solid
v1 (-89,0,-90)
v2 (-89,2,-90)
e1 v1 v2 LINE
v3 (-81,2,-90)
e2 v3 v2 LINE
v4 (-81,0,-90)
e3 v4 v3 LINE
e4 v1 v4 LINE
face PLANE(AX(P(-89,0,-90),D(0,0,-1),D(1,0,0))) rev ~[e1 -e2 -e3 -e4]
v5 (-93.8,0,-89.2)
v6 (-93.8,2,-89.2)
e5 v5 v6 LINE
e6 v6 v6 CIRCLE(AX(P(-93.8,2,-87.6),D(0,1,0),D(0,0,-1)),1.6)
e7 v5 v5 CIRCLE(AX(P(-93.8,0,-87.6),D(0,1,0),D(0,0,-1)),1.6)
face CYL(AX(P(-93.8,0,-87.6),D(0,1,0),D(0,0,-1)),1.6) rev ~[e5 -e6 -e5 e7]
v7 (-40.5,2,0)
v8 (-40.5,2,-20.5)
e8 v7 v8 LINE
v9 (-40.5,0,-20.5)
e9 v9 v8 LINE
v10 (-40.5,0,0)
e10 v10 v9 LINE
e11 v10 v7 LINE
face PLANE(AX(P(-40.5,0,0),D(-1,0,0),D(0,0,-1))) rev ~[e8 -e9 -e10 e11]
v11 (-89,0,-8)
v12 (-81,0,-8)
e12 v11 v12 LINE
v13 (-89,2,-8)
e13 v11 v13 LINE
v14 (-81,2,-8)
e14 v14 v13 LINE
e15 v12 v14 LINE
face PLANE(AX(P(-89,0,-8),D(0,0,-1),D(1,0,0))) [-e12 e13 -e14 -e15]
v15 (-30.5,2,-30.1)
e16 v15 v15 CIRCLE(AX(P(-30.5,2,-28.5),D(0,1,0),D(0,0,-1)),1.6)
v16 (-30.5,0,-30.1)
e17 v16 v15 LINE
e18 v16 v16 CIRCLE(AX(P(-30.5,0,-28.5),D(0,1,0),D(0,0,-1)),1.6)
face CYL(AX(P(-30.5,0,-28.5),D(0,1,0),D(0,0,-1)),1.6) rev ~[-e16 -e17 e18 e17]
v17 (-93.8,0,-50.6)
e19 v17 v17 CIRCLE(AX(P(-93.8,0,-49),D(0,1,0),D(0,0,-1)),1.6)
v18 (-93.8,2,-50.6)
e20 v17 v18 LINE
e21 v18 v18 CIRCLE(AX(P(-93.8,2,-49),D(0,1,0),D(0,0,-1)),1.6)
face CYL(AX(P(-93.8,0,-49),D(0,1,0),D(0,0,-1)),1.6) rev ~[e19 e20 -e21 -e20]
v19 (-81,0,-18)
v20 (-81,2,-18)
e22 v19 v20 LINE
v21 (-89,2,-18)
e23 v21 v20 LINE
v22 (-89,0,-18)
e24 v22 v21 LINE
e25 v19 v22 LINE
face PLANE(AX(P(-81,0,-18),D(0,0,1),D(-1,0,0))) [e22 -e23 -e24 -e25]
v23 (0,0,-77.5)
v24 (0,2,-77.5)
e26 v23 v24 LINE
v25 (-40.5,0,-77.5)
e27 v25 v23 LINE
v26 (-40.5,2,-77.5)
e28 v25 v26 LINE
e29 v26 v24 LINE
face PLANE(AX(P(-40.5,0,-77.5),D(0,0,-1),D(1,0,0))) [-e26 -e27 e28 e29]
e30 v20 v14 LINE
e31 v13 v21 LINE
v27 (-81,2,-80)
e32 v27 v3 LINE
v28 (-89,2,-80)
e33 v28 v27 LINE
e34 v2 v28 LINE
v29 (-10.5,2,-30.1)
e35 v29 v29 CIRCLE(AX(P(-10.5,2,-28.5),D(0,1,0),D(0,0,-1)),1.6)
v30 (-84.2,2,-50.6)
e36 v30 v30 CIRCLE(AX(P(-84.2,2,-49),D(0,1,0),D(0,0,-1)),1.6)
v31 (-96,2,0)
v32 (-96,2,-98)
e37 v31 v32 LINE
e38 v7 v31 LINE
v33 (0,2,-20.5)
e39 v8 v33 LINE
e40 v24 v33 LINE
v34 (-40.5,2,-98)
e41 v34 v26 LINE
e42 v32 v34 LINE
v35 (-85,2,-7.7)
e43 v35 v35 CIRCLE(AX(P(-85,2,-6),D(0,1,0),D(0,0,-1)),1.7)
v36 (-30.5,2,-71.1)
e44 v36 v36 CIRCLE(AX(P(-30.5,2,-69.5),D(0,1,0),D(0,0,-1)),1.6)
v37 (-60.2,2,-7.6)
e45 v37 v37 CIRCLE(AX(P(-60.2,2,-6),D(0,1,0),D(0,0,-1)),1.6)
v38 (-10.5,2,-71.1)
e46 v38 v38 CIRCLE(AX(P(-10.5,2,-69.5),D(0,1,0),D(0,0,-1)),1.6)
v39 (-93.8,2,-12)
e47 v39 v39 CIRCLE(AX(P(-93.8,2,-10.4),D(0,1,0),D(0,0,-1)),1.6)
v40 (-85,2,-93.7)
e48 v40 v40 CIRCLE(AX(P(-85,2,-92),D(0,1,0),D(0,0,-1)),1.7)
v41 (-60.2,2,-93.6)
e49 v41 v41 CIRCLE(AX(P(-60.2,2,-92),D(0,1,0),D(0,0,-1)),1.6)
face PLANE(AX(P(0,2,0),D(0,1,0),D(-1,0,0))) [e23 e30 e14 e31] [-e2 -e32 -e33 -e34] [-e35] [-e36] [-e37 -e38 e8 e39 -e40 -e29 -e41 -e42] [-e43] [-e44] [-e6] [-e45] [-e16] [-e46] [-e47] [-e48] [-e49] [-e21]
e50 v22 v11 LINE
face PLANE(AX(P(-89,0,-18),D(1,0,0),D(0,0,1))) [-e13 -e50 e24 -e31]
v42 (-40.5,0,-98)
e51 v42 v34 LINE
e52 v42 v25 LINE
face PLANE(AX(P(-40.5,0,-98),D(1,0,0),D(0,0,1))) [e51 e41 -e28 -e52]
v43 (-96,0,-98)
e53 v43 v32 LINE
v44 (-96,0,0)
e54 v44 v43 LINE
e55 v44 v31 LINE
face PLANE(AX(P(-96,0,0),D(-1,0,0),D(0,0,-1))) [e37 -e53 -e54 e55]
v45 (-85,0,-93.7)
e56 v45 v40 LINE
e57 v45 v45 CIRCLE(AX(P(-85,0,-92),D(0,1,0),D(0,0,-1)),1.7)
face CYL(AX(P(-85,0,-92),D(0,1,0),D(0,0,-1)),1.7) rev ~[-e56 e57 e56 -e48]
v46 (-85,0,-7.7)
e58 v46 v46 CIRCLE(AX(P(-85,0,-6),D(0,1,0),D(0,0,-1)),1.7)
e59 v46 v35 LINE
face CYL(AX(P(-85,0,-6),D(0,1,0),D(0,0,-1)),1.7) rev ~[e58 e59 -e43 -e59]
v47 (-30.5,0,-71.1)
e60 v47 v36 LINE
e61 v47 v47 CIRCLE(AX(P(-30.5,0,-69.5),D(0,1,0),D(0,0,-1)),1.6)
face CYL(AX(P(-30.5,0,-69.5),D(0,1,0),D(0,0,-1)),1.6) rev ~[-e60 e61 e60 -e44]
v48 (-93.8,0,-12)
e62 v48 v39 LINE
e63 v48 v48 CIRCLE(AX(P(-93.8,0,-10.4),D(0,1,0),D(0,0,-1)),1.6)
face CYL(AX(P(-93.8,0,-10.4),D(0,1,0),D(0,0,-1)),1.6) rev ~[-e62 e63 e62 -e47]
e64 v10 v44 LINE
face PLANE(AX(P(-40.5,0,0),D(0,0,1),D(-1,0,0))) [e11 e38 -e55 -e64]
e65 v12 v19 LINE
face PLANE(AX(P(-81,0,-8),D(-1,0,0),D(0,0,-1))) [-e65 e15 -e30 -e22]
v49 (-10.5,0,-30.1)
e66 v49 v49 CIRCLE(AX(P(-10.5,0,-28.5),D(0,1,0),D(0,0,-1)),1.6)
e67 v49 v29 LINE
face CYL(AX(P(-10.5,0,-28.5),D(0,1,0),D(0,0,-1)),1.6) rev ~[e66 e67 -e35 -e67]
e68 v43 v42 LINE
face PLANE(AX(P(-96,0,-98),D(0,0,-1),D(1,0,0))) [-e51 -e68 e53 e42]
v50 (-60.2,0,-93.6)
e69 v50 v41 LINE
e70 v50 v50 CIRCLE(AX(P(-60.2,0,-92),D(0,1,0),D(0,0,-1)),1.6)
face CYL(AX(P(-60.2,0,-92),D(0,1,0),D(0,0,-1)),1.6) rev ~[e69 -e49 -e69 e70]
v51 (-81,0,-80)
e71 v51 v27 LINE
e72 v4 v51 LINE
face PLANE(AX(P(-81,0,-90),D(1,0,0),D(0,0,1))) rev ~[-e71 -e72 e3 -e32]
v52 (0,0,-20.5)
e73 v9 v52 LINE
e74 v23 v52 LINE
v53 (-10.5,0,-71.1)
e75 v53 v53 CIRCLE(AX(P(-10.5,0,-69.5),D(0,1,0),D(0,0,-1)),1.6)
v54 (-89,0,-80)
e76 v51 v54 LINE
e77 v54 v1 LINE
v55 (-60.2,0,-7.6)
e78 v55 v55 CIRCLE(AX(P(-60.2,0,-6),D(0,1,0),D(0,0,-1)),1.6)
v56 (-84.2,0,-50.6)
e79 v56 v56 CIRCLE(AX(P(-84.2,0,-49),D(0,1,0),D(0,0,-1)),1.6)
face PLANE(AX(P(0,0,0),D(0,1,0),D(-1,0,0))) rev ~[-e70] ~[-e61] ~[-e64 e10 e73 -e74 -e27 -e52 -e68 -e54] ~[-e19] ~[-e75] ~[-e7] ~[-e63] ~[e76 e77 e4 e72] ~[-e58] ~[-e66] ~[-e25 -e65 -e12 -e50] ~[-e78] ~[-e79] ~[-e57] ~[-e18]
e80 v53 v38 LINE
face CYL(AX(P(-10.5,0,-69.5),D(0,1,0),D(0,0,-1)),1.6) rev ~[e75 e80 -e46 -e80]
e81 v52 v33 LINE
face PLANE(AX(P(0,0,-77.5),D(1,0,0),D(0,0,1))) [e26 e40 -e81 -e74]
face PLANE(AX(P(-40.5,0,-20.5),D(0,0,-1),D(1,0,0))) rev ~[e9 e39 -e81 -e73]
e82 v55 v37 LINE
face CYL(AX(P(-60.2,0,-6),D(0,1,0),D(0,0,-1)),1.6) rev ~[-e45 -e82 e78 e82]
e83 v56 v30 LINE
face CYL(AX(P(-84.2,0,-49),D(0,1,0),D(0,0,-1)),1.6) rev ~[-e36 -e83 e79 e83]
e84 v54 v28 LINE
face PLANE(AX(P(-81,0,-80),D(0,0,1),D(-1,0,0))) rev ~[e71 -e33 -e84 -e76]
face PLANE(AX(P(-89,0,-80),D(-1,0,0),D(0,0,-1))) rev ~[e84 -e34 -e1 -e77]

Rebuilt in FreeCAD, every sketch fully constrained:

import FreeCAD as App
import Part
import Sketcher

doc = App.newDocument("Part")
body = doc.addObject("PartDesign::Body", "Body")

# Sketch on XZ plane
sketch1 = body.newObject("Sketcher::SketchObject", "Sketch")
sketch1.AttachmentSupport = (doc.getObject("XZ_Plane"), [""])
sketch1.MapMode = "FlatFace"
sketch1.addGeometry(Part.LineSegment(App.Vector(-96, 0, 0), App.Vector(-40, 0, 0)), False)
sketch1.addGeometry(Part.LineSegment(App.Vector(-40, 0, 0), App.Vector(-40, -20, 0)), False)
sketch1.addGeometry(Part.LineSegment(App.Vector(-40, -20, 0), App.Vector(0, -20, 0)), False)
sketch1.addGeometry(Part.LineSegment(App.Vector(0, -20, 0), App.Vector(0, -78, 0)), False)
sketch1.addGeometry(Part.LineSegment(App.Vector(0, -78, 0), App.Vector(-40, -78, 0)), False)
sketch1.addGeometry(Part.LineSegment(App.Vector(-40, -78, 0), App.Vector(-40, -98, 0)), False)
sketch1.addGeometry(Part.LineSegment(App.Vector(-40, -98, 0), App.Vector(-96, -98, 0)), False)
sketch1.addGeometry(Part.LineSegment(App.Vector(-96, -98, 0), App.Vector(-96, 0, 0)), False)
sketch1.addConstraint(Sketcher.Constraint("Coincident", 0, 2, 1, 1))
sketch1.addConstraint(Sketcher.Constraint("Coincident", 1, 2, 2, 1))
sketch1.addConstraint(Sketcher.Constraint("Coincident", 2, 2, 3, 1))
sketch1.addConstraint(Sketcher.Constraint("Coincident", 3, 2, 4, 1))
sketch1.addConstraint(Sketcher.Constraint("Coincident", 4, 2, 5, 1))
sketch1.addConstraint(Sketcher.Constraint("Coincident", 5, 2, 6, 1))
sketch1.addConstraint(Sketcher.Constraint("Coincident", 6, 2, 7, 1))
sketch1.addConstraint(Sketcher.Constraint("Coincident", 7, 2, 0, 1))
sketch1.addConstraint(Sketcher.Constraint("Horizontal", 0))
sketch1.addConstraint(Sketcher.Constraint("Vertical", 1))
sketch1.addConstraint(Sketcher.Constraint("Horizontal", 2))
sketch1.addConstraint(Sketcher.Constraint("Vertical", 3))
sketch1.addConstraint(Sketcher.Constraint("Horizontal", 4))
sketch1.addConstraint(Sketcher.Constraint("Vertical", 5))
sketch1.addConstraint(Sketcher.Constraint("Horizontal", 6))
sketch1.addConstraint(Sketcher.Constraint("Vertical", 7))
sketch1.addConstraint(Sketcher.Constraint("PointOnObject", 0, 2, -1))
sketch1.addConstraint(Sketcher.Constraint("PointOnObject", 2, 2, -2))
sketch1.addConstraint(Sketcher.Constraint("Vertical", 1, 2, 4, 2))
sketch1.addConstraint(Sketcher.Constraint("Equal", 1, 5))
sketch1.addConstraint(Sketcher.Constraint("DistanceY", 3, 2, 3, 1, 57.0))
sketch1.addConstraint(Sketcher.Constraint("DistanceY", 7, 1, 7, 2, 98.0))
sketch1.addConstraint(Sketcher.Constraint("DistanceX", 2, 1, 2, 2, 40.5))
sketch1.addConstraint(Sketcher.Constraint("DistanceX", 6, 2, -1, 1, 96.0))
pad1 = body.newObject("PartDesign::Pad", "Pad")
pad1.Profile = sketch1
pad1.Length = 2
pad1.Reversed = True

# Sketch on XZ plane
sketch2 = body.newObject("Sketcher::SketchObject", "Sketch001")
sketch2.AttachmentSupport = (doc.getObject("XZ_Plane"), [""])
sketch2.MapMode = "FlatFace"
sketch2.addGeometry(Part.Circle(App.Vector(-30.5, -28.5, 0), App.Vector(0, 0, 1), 1.6), False)
sketch2.addGeometry(Part.Circle(App.Vector(-30.5, -69.5, 0), App.Vector(0, 0, 1), 1.6), False)
sketch2.addGeometry(Part.Circle(App.Vector(-10.5, -28.5, 0), App.Vector(0, 0, 1), 1.6), False)
sketch2.addGeometry(Part.Circle(App.Vector(-10.5, -69.5, 0), App.Vector(0, 0, 1), 1.6), False)
sketch2.addConstraint(Sketcher.Constraint("Equal", 0, 1))
sketch2.addConstraint(Sketcher.Constraint("Equal", 1, 2))
sketch2.addConstraint(Sketcher.Constraint("Equal", 2, 3))
sketch2.addConstraint(Sketcher.Constraint("Horizontal", 0, 3, 2, 3))
sketch2.addConstraint(Sketcher.Constraint("Horizontal", 1, 3, 3, 3))
sketch2.addConstraint(Sketcher.Constraint("Vertical", 0, 3, 1, 3))
sketch2.addConstraint(Sketcher.Constraint("Vertical", 2, 3, 3, 3))
sketch2.addConstraint(Sketcher.Constraint("Diameter", 0, 3.2))
sketch2.addConstraint(Sketcher.Constraint("DistanceY", 1, 3, 0, 3, 41.0))
sketch2.addConstraint(Sketcher.Constraint("DistanceX", 0, 3, 2, 3, 20.0))
sketch2.addConstraint(Sketcher.Constraint("DistanceX", 0, 3, -1, 1, 30.5))
sketch2.addConstraint(Sketcher.Constraint("DistanceY", 0, 3, -1, 1, 28.5))
doc.recompute()
hole = body.newObject("PartDesign::Hole", "Hole")
hole.Profile = sketch2
hole.ThreadType = "None"
hole.Diameter = 3.2
hole.DepthType = "Dimension"
hole.Depth = 10
hole.DrillPoint = "Flat"

# Sketch on XZ plane
sketch3 = body.newObject("Sketcher::SketchObject", "Sketch002")
sketch3.AttachmentSupport = (doc.getObject("XZ_Plane"), [""])
sketch3.MapMode = "FlatFace"
sketch3.addGeometry(Part.Circle(App.Vector(-93.8, -10.4, 0), App.Vector(0, 0, 1), 1.6), False)
sketch3.addGeometry(Part.Circle(App.Vector(-93.8, -87.6, 0), App.Vector(0, 0, 1), 1.6), False)
sketch3.addGeometry(Part.Circle(App.Vector(-93.8, -49, 0), App.Vector(0, 0, 1), 1.6), False)
sketch3.addConstraint(Sketcher.Constraint("Equal", 0, 1))
sketch3.addConstraint(Sketcher.Constraint("Equal", 1, 2))
sketch3.addConstraint(Sketcher.Constraint("Vertical", 0, 3, 1, 3))
sketch3.addConstraint(Sketcher.Constraint("Vertical", 1, 3, 2, 3))
sketch3.addConstraint(Sketcher.Constraint("Diameter", 0, 3.2))
sketch3.addConstraint(Sketcher.Constraint("DistanceY", 2, 3, -1, 1, 49.0))
sketch3.addConstraint(Sketcher.Constraint("DistanceX", 0, 3, -1, 1, 93.8))
sketch3.addConstraint(Sketcher.Constraint("DistanceY", 0, 3, -1, 1, 10.4))
sketch3.addConstraint(Sketcher.Constraint("DistanceY", 1, 3, -1, 1, 87.6))
doc.recompute()
hole2 = body.newObject("PartDesign::Hole", "Hole001")
hole2.Profile = sketch3
hole2.ThreadType = "None"
hole2.Diameter = 3.2
hole2.DepthType = "ThroughAll"

# Sketch on XZ plane
sketch4 = body.newObject("Sketcher::SketchObject", "Sketch003")
sketch4.AttachmentSupport = (doc.getObject("XZ_Plane"), [""])
sketch4.MapMode = "FlatFace"
sketch4.addGeometry(Part.Circle(App.Vector(-60.2, -6, 0), App.Vector(0, 0, 1), 1.6), False)
sketch4.addGeometry(Part.Circle(App.Vector(-60.2, -92, 0), App.Vector(0, 0, 1), 1.6), False)
sketch4.addConstraint(Sketcher.Constraint("Equal", 0, 1))
sketch4.addConstraint(Sketcher.Constraint("Vertical", 0, 3, 1, 3))
sketch4.addConstraint(Sketcher.Constraint("Diameter", 0, 3.2))
sketch4.addConstraint(Sketcher.Constraint("DistanceY", 0, 3, -1, 1, 6.0))
sketch4.addConstraint(Sketcher.Constraint("DistanceY", 1, 3, -1, 1, 92.0))
sketch4.addConstraint(Sketcher.Constraint("DistanceX", 0, 3, -1, 1, 60.2))
doc.recompute()
hole3 = body.newObject("PartDesign::Hole", "Hole002")
hole3.Profile = sketch4
hole3.ThreadType = "None"
hole3.Diameter = 3.2
hole3.DepthType = "Dimension"
hole3.Depth = 30
hole3.DrillPoint = "Flat"

# Sketch on XZ plane
sketch5 = body.newObject("Sketcher::SketchObject", "Sketch004")
sketch5.AttachmentSupport = (doc.getObject("XZ_Plane"), [""])
sketch5.MapMode = "FlatFace"
sketch5.addGeometry(Part.Circle(App.Vector(-84.2, -49, 0), App.Vector(0, 0, 1), 1.6), False)
sketch5.addConstraint(Sketcher.Constraint("Diameter", 0, 3.2))
sketch5.addConstraint(Sketcher.Constraint("DistanceY", 0, 3, -1, 1, 49.0))
sketch5.addConstraint(Sketcher.Constraint("DistanceX", 0, 3, -1, 1, 84.2))
doc.recompute()
hole4 = body.newObject("PartDesign::Hole", "Hole003")
hole4.Profile = sketch5
hole4.ThreadType = "None"
hole4.Diameter = 3.2
hole4.DepthType = "Dimension"
hole4.Depth = 30
hole4.DrillPoint = "Flat"

# Sketch on XZ plane
sketch6 = body.newObject("Sketcher::SketchObject", "Sketch005")
sketch6.AttachmentSupport = (doc.getObject("XZ_Plane"), [""])
sketch6.MapMode = "FlatFace"
sketch6.addGeometry(Part.Circle(App.Vector(-85, -6, 0), App.Vector(0, 0, 1), 1.7), False)
sketch6.addGeometry(Part.Circle(App.Vector(-85, -92, 0), App.Vector(0, 0, 1), 1.7), False)
sketch6.addConstraint(Sketcher.Constraint("Equal", 0, 1))
sketch6.addConstraint(Sketcher.Constraint("Vertical", 0, 3, 1, 3))
sketch6.addConstraint(Sketcher.Constraint("Diameter", 0, 3.4))
sketch6.addConstraint(Sketcher.Constraint("DistanceX", 0, 3, -1, 1, 85.0))
sketch6.addConstraint(Sketcher.Constraint("DistanceY", 0, 3, -1, 1, 6.0))
sketch6.addConstraint(Sketcher.Constraint("DistanceY", 1, 3, -1, 1, 92.0))
doc.recompute()
hole5 = body.newObject("PartDesign::Hole", "Hole004")
hole5.Profile = sketch6
hole5.ThreadType = "None"
hole5.Diameter = 3.4
hole5.DepthType = "ThroughAll"

# Sketch on XZ plane
sketch7 = body.newObject("Sketcher::SketchObject", "Sketch006")
sketch7.AttachmentSupport = (doc.getObject("XZ_Plane"), [""])
sketch7.MapMode = "FlatFace"
sketch7.addGeometry(Part.LineSegment(App.Vector(-89, -18, 0), App.Vector(-89, -8, 0)), False)
sketch7.addGeometry(Part.LineSegment(App.Vector(-89, -8, 0), App.Vector(-81, -8, 0)), False)
sketch7.addGeometry(Part.LineSegment(App.Vector(-81, -8, 0), App.Vector(-81, -18, 0)), False)
sketch7.addGeometry(Part.LineSegment(App.Vector(-81, -18, 0), App.Vector(-89, -18, 0)), False)
sketch7.addGeometry(Part.LineSegment(App.Vector(-81, -90, 0), App.Vector(-89, -90, 0)), False)
sketch7.addGeometry(Part.LineSegment(App.Vector(-89, -90, 0), App.Vector(-89, -80, 0)), False)
sketch7.addGeometry(Part.LineSegment(App.Vector(-89, -80, 0), App.Vector(-81, -80, 0)), False)
sketch7.addGeometry(Part.LineSegment(App.Vector(-81, -80, 0), App.Vector(-81, -90, 0)), False)
sketch7.addConstraint(Sketcher.Constraint("Coincident", 0, 2, 1, 1))
sketch7.addConstraint(Sketcher.Constraint("Coincident", 1, 2, 2, 1))
sketch7.addConstraint(Sketcher.Constraint("Coincident", 2, 2, 3, 1))
sketch7.addConstraint(Sketcher.Constraint("Coincident", 3, 2, 0, 1))
sketch7.addConstraint(Sketcher.Constraint("Coincident", 4, 2, 5, 1))
sketch7.addConstraint(Sketcher.Constraint("Coincident", 5, 2, 6, 1))
sketch7.addConstraint(Sketcher.Constraint("Coincident", 6, 2, 7, 1))
sketch7.addConstraint(Sketcher.Constraint("Coincident", 7, 2, 4, 1))
sketch7.addConstraint(Sketcher.Constraint("Vertical", 0))
sketch7.addConstraint(Sketcher.Constraint("Horizontal", 1))
sketch7.addConstraint(Sketcher.Constraint("Vertical", 2))
sketch7.addConstraint(Sketcher.Constraint("Horizontal", 3))
sketch7.addConstraint(Sketcher.Constraint("Horizontal", 4))
sketch7.addConstraint(Sketcher.Constraint("Vertical", 5))
sketch7.addConstraint(Sketcher.Constraint("Horizontal", 6))
sketch7.addConstraint(Sketcher.Constraint("Vertical", 7))
sketch7.addConstraint(Sketcher.Constraint("Vertical", 3, 2, 4, 2))
sketch7.addConstraint(Sketcher.Constraint("Vertical", 2, 2, 6, 2))
sketch7.addConstraint(Sketcher.Constraint("Equal", 2, 5))
sketch7.addConstraint(Sketcher.Constraint("DistanceX", 1, 1, 1, 2, 8.0))
sketch7.addConstraint(Sketcher.Constraint("DistanceY", 0, 1, 0, 2, 10.0))
sketch7.addConstraint(Sketcher.Constraint("DistanceY", 0, 2, -1, 1, 8.0))
sketch7.addConstraint(Sketcher.Constraint("DistanceX", 0, 2, -1, 1, 89.0))
sketch7.addConstraint(Sketcher.Constraint("DistanceY", 4, 2, -1, 1, 90.0))
pocket1 = body.newObject("PartDesign::Pocket", "Pocket")
pocket1.Profile = sketch7
pocket1.Length = 10

doc.recompute()
